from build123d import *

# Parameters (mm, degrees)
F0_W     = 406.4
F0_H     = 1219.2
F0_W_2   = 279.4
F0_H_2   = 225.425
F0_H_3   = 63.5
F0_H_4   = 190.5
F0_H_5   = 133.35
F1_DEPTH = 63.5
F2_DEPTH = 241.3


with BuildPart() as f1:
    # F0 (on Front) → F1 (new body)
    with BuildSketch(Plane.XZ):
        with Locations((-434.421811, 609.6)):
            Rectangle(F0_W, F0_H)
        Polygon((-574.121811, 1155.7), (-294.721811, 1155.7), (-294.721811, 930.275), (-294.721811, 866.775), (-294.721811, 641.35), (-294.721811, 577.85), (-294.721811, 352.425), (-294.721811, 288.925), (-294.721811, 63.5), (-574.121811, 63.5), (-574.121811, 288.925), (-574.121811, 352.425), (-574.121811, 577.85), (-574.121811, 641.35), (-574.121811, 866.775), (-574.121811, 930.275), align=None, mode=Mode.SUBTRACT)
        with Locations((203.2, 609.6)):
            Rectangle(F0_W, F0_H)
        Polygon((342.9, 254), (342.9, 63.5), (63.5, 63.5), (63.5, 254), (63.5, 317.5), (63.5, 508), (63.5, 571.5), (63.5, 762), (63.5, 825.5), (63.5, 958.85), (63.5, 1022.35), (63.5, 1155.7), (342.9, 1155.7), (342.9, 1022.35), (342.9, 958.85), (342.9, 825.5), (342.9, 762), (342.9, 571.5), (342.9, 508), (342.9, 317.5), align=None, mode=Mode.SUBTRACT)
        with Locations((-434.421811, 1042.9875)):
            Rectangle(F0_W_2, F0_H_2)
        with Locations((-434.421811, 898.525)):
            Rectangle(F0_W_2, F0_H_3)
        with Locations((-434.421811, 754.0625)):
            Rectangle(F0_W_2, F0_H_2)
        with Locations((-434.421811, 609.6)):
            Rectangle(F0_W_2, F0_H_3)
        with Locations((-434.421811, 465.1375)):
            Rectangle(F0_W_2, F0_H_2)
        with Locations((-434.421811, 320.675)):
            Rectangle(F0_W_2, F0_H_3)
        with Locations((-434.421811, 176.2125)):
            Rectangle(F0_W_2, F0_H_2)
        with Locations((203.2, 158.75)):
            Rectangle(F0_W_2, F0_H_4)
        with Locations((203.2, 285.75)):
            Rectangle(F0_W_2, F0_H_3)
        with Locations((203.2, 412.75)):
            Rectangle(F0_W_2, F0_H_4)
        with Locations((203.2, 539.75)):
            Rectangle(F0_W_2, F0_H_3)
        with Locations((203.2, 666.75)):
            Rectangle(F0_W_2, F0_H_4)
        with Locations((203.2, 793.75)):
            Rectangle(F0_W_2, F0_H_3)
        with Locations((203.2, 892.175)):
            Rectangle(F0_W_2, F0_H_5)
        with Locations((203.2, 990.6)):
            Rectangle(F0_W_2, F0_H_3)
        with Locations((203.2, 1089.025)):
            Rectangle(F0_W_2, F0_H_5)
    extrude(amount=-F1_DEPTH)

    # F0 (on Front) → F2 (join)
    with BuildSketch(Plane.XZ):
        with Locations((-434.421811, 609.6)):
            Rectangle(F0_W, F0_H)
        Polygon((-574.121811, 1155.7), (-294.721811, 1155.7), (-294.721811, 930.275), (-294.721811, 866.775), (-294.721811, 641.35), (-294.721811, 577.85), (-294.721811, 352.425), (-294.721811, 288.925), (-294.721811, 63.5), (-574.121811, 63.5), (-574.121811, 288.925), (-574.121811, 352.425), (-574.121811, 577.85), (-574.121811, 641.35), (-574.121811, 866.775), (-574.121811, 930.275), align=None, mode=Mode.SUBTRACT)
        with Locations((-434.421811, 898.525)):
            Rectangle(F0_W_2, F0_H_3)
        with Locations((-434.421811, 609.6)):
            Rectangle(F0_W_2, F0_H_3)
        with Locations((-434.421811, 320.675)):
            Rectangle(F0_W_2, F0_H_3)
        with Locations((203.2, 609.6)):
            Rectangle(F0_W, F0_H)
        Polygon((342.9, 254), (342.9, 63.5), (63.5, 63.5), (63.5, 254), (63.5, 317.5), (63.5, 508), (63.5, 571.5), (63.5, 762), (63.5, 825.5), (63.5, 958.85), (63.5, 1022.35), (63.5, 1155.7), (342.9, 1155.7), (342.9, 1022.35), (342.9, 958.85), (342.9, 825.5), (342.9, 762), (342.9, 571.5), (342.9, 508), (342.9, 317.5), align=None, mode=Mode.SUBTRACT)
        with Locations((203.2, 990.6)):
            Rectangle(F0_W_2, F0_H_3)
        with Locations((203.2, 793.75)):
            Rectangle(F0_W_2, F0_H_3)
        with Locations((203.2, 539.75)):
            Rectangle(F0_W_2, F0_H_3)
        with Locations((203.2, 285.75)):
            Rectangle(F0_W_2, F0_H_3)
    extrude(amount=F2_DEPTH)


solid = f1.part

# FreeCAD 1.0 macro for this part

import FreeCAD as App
import Part
import Sketcher
Q = App.Units.Quantity

doc = App.newDocument("Part")
body = doc.addObject("PartDesign::Body", "Body")
body.AllowCompound = True

sketch1 = body.newObject("Sketcher::SketchObject", "Sketch")
sketch1.AttachmentSupport = (doc.getObject("XZ_Plane"), [""])
sketch1.MapMode = "FlatFace"
sketch1.addGeometry(Part.LineSegment(App.Vector(-638, 1219, 0), App.Vector(-638, 0, 0)), False)
sketch1.addGeometry(Part.LineSegment(App.Vector(-638, 0, 0), App.Vector(-231, 0, 0)), False)
sketch1.addGeometry(Part.LineSegment(App.Vector(-231, 0, 0), App.Vector(-231, 1219, 0)), False)
sketch1.addGeometry(Part.LineSegment(App.Vector(-231, 1219, 0), App.Vector(-638, 1219, 0)), False)
sketch1.addGeometry(Part.LineSegment(App.Vector(0, 1219, 0), App.Vector(0, 0, 0)), False)
sketch1.addGeometry(Part.LineSegment(App.Vector(0, 0, 0), App.Vector(406, 0, 0)), False)
sketch1.addGeometry(Part.LineSegment(App.Vector(406, 0, 0), App.Vector(406, 1219, 0)), False)
sketch1.addGeometry(Part.LineSegment(App.Vector(406, 1219, 0), App.Vector(0, 1219, 0)), False)
sketch1.addConstraint(Sketcher.Constraint("Coincident", 0, 2, 1, 1))
sketch1.addConstraint(Sketcher.Constraint("Coincident", 1, 2, 2, 1))
sketch1.addConstraint(Sketcher.Constraint("Coincident", 2, 2, 3, 1))
sketch1.addConstraint(Sketcher.Constraint("Coincident", 3, 2, 0, 1))
sketch1.addConstraint(Sketcher.Constraint("Coincident", 4, 2, 5, 1))
sketch1.addConstraint(Sketcher.Constraint("Coincident", 5, 2, 6, 1))
sketch1.addConstraint(Sketcher.Constraint("Coincident", 6, 2, 7, 1))
sketch1.addConstraint(Sketcher.Constraint("Coincident", 7, 2, 4, 1))
sketch1.addConstraint(Sketcher.Constraint("Vertical", 0))
sketch1.addConstraint(Sketcher.Constraint("Horizontal", 1))
sketch1.addConstraint(Sketcher.Constraint("Vertical", 2))
sketch1.addConstraint(Sketcher.Constraint("Horizontal", 3))
sketch1.addConstraint(Sketcher.Constraint("Vertical", 4))
sketch1.addConstraint(Sketcher.Constraint("Horizontal", 5))
sketch1.addConstraint(Sketcher.Constraint("Vertical", 6))
sketch1.addConstraint(Sketcher.Constraint("Horizontal", 7))
sketch1.addConstraint(Sketcher.Constraint("Coincident", 4, 2, -1, 1))
sketch1.addConstraint(Sketcher.Constraint("PointOnObject", 0, 2, -1))
sketch1.addConstraint(Sketcher.Constraint("Horizontal", 3, 2, 6, 2))
sketch1.addConstraint(Sketcher.Constraint("Equal", 3, 5))
sketch1.addConstraint(Sketcher.Constraint("DistanceX", 1, 1, 1, 2, Q("16 in")))
sketch1.addConstraint(Sketcher.Constraint("DistanceY", 0, 2, 0, 1, Q("48 in")))
sketch1.addConstraint(Sketcher.Constraint("DistanceX", 0, 2, -1, 1, Q("637.621811 mm")))
pad1 = body.newObject("PartDesign::Pad", "Pad")
pad1.Profile = sketch1
pad1.Length = Q("2.5 in")
pad1.Reversed = True

sketch2 = body.newObject("Sketcher::SketchObject", "Sketch001")
sketch2.AttachmentSupport = (doc.getObject("XZ_Plane"), [""])
sketch2.MapMode = "FlatFace"
sketch2.addGeometry(Part.LineSegment(App.Vector(-638, 1219, 0), App.Vector(-638, 0, 0)), False)
sketch2.addGeometry(Part.LineSegment(App.Vector(-638, 0, 0), App.Vector(-231, 0, 0)), False)
sketch2.addGeometry(Part.LineSegment(App.Vector(-231, 0, 0), App.Vector(-231, 1219, 0)), False)
sketch2.addGeometry(Part.LineSegment(App.Vector(-231, 1219, 0), App.Vector(-638, 1219, 0)), False)
sketch2.addGeometry(Part.LineSegment(App.Vector(-574, 64, 0), App.Vector(-574, 289, 0)), False)
sketch2.addGeometry(Part.LineSegment(App.Vector(-574, 289, 0), App.Vector(-295, 289, 0)), False)
sketch2.addGeometry(Part.LineSegment(App.Vector(-295, 289, 0), App.Vector(-295, 64, 0)), False)
sketch2.addGeometry(Part.LineSegment(App.Vector(-295, 64, 0), App.Vector(-574, 64, 0)), False)
sketch2.addGeometry(Part.LineSegment(App.Vector(-574, 352, 0), App.Vector(-574, 578, 0)), False)
sketch2.addGeometry(Part.LineSegment(App.Vector(-574, 578, 0), App.Vector(-295, 578, 0)), False)
sketch2.addGeometry(Part.LineSegment(App.Vector(-295, 578, 0), App.Vector(-295, 352, 0)), False)
sketch2.addGeometry(Part.LineSegment(App.Vector(-295, 352, 0), App.Vector(-574, 352, 0)), False)
sketch2.addGeometry(Part.LineSegment(App.Vector(-574, 641, 0), App.Vector(-574, 867, 0)), False)
sketch2.addGeometry(Part.LineSegment(App.Vector(-574, 867, 0), App.Vector(-295, 867, 0)), False)
sketch2.addGeometry(Part.LineSegment(App.Vector(-295, 867, 0), App.Vector(-295, 641, 0)), False)
sketch2.addGeometry(Part.LineSegment(App.Vector(-295, 641, 0), App.Vector(-574, 641, 0)), False)
sketch2.addGeometry(Part.LineSegment(App.Vector(-574, 930, 0), App.Vector(-574, 1156, 0)), False)
sketch2.addGeometry(Part.LineSegment(App.Vector(-574, 1156, 0), App.Vector(-295, 1156, 0)), False)
sketch2.addGeometry(Part.LineSegment(App.Vector(-295, 1156, 0), App.Vector(-295, 930, 0)), False)
sketch2.addGeometry(Part.LineSegment(App.Vector(-295, 930, 0), App.Vector(-574, 930, 0)), False)
sketch2.addGeometry(Part.LineSegment(App.Vector(0, 1219, 0), App.Vector(0, 0, 0)), False)
sketch2.addGeometry(Part.LineSegment(App.Vector(0, 0, 0), App.Vector(406, 0, 0)), False)
sketch2.addGeometry(Part.LineSegment(App.Vector(406, 0, 0), App.Vector(406, 1219, 0)), False)
sketch2.addGeometry(Part.LineSegment(App.Vector(406, 1219, 0), App.Vector(0, 1219, 0)), False)
sketch2.addGeometry(Part.LineSegment(App.Vector(343, 1156, 0), App.Vector(343, 1022, 0)), False)
sketch2.addGeometry(Part.LineSegment(App.Vector(343, 1022, 0), App.Vector(64, 1022, 0)), False)
sketch2.addGeometry(Part.LineSegment(App.Vector(64, 1022, 0), App.Vector(64, 1156, 0)), False)
sketch2.addGeometry(Part.LineSegment(App.Vector(64, 1156, 0), App.Vector(343, 1156, 0)), False)
sketch2.addGeometry(Part.LineSegment(App.Vector(343, 959, 0), App.Vector(343, 826, 0)), False)
sketch2.addGeometry(Part.LineSegment(App.Vector(343, 826, 0), App.Vector(64, 826, 0)), False)
sketch2.addGeometry(Part.LineSegment(App.Vector(64, 826, 0), App.Vector(64, 959, 0)), False)
sketch2.addGeometry(Part.LineSegment(App.Vector(64, 959, 0), App.Vector(343, 959, 0)), False)
sketch2.addGeometry(Part.LineSegment(App.Vector(343, 762, 0), App.Vector(343, 572, 0)), False)
sketch2.addGeometry(Part.LineSegment(App.Vector(343, 572, 0), App.Vector(64, 572, 0)), False)
sketch2.addGeometry(Part.LineSegment(App.Vector(64, 572, 0), App.Vector(64, 762, 0)), False)
sketch2.addGeometry(Part.LineSegment(App.Vector(64, 762, 0), App.Vector(343, 762, 0)), False)
sketch2.addGeometry(Part.LineSegment(App.Vector(343, 508, 0), App.Vector(343, 318, 0)), False)
sketch2.addGeometry(Part.LineSegment(App.Vector(343, 318, 0), App.Vector(64, 318, 0)), False)
sketch2.addGeometry(Part.LineSegment(App.Vector(64, 318, 0), App.Vector(64, 508, 0)), False)
sketch2.addGeometry(Part.LineSegment(App.Vector(64, 508, 0), App.Vector(343, 508, 0)), False)
sketch2.addGeometry(Part.LineSegment(App.Vector(343, 254, 0), App.Vector(343, 64, 0)), False)
sketch2.addGeometry(Part.LineSegment(App.Vector(343, 64, 0), App.Vector(64, 64, 0)), False)
sketch2.addGeometry(Part.LineSegment(App.Vector(64, 64, 0), App.Vector(64, 254, 0)), False)
sketch2.addGeometry(Part.LineSegment(App.Vector(64, 254, 0), App.Vector(343, 254, 0)), False)
sketch2.addConstraint(Sketcher.Constraint("Coincident", 0, 2, 1, 1))
sketch2.addConstraint(Sketcher.Constraint("Coincident", 1, 2, 2, 1))
sketch2.addConstraint(Sketcher.Constraint("Coincident", 2, 2, 3, 1))
sketch2.addConstraint(Sketcher.Constraint("Coincident", 3, 2, 0, 1))
sketch2.addConstraint(Sketcher.Constraint("Coincident", 4, 2, 5, 1))
sketch2.addConstraint(Sketcher.Constraint("Coincident", 5, 2, 6, 1))
sketch2.addConstraint(Sketcher.Constraint("Coincident", 6, 2, 7, 1))
sketch2.addConstraint(Sketcher.Constraint("Coincident", 7, 2, 4, 1))
sketch2.addConstraint(Sketcher.Constraint("Coincident", 8, 2, 9, 1))
sketch2.addConstraint(Sketcher.Constraint("Coincident", 9, 2, 10, 1))
sketch2.addConstraint(Sketcher.Constraint("Coincident", 10, 2, 11, 1))
sketch2.addConstraint(Sketcher.Constraint("Coincident", 11, 2, 8, 1))
sketch2.addConstraint(Sketcher.Constraint("Coincident", 12, 2, 13, 1))
sketch2.addConstraint(Sketcher.Constraint("Coincident", 13, 2, 14, 1))
sketch2.addConstraint(Sketcher.Constraint("Coincident", 14, 2, 15, 1))
sketch2.addConstraint(Sketcher.Constraint("Coincident", 15, 2, 12, 1))
sketch2.addConstraint(Sketcher.Constraint("Coincident", 16, 2, 17, 1))
sketch2.addConstraint(Sketcher.Constraint("Coincident", 17, 2, 18, 1))
sketch2.addConstraint(Sketcher.Constraint("Coincident", 18, 2, 19, 1))
sketch2.addConstraint(Sketcher.Constraint("Coincident", 19, 2, 16, 1))
sketch2.addConstraint(Sketcher.Constraint("Coincident", 20, 2, 21, 1))
sketch2.addConstraint(Sketcher.Constraint("Coincident", 21, 2, 22, 1))
sketch2.addConstraint(Sketcher.Constraint("Coincident", 22, 2, 23, 1))
sketch2.addConstraint(Sketcher.Constraint("Coincident", 23, 2, 20, 1))
sketch2.addConstraint(Sketcher.Constraint("Coincident", 24, 2, 25, 1))
sketch2.addConstraint(Sketcher.Constraint("Coincident", 25, 2, 26, 1))
sketch2.addConstraint(Sketcher.Constraint("Coincident", 26, 2, 27, 1))
sketch2.addConstraint(Sketcher.Constraint("Coincident", 27, 2, 24, 1))
sketch2.addConstraint(Sketcher.Constraint("Coincident", 28, 2, 29, 1))
sketch2.addConstraint(Sketcher.Constraint("Coincident", 29, 2, 30, 1))
sketch2.addConstraint(Sketcher.Constraint("Coincident", 30, 2, 31, 1))
sketch2.addConstraint(Sketcher.Constraint("Coincident", 31, 2, 28, 1))
sketch2.addConstraint(Sketcher.Constraint("Coincident", 32, 2, 33, 1))
sketch2.addConstraint(Sketcher.Constraint("Coincident", 33, 2, 34, 1))
sketch2.addConstraint(Sketcher.Constraint("Coincident", 34, 2, 35, 1))
sketch2.addConstraint(Sketcher.Constraint("Coincident", 35, 2, 32, 1))
sketch2.addConstraint(Sketcher.Constraint("Coincident", 36, 2, 37, 1))
sketch2.addConstraint(Sketcher.Constraint("Coincident", 37, 2, 38, 1))
sketch2.addConstraint(Sketcher.Constraint("Coincident", 38, 2, 39, 1))
sketch2.addConstraint(Sketcher.Constraint("Coincident", 39, 2, 36, 1))
sketch2.addConstraint(Sketcher.Constraint("Coincident", 40, 2, 41, 1))
sketch2.addConstraint(Sketcher.Constraint("Coincident", 41, 2, 42, 1))
sketch2.addConstraint(Sketcher.Constraint("Coincident", 42, 2, 43, 1))
sketch2.addConstraint(Sketcher.Constraint("Coincident", 43, 2, 40, 1))
sketch2.addConstraint(Sketcher.Constraint("Vertical", 0))
sketch2.addConstraint(Sketcher.Constraint("Horizontal", 1))
sketch2.addConstraint(Sketcher.Constraint("Vertical", 2))
sketch2.addConstraint(Sketcher.Constraint("Horizontal", 3))
sketch2.addConstraint(Sketcher.Constraint("Vertical", 4))
sketch2.addConstraint(Sketcher.Constraint("Horizontal", 5))
sketch2.addConstraint(Sketcher.Constraint("Vertical", 6))
sketch2.addConstraint(Sketcher.Constraint("Horizontal", 7))
sketch2.addConstraint(Sketcher.Constraint("Vertical", 8))
sketch2.addConstraint(Sketcher.Constraint("Horizontal", 9))
sketch2.addConstraint(Sketcher.Constraint("Vertical", 10))
sketch2.addConstraint(Sketcher.Constraint("Horizontal", 11))
sketch2.addConstraint(Sketcher.Constraint("Vertical", 12))
sketch2.addConstraint(Sketcher.Constraint("Horizontal", 13))
sketch2.addConstraint(Sketcher.Constraint("Vertical", 14))
sketch2.addConstraint(Sketcher.Constraint("Horizontal", 15))
sketch2.addConstraint(Sketcher.Constraint("Vertical", 16))
sketch2.addConstraint(Sketcher.Constraint("Horizontal", 17))
sketch2.addConstraint(Sketcher.Constraint("Vertical", 18))
sketch2.addConstraint(Sketcher.Constraint("Horizontal", 19))
sketch2.addConstraint(Sketcher.Constraint("Vertical", 20))
sketch2.addConstraint(Sketcher.Constraint("Horizontal", 21))
sketch2.addConstraint(Sketcher.Constraint("Vertical", 22))
sketch2.addConstraint(Sketcher.Constraint("Horizontal", 23))
sketch2.addConstraint(Sketcher.Constraint("Vertical", 24))
sketch2.addConstraint(Sketcher.Constraint("Horizontal", 25))
sketch2.addConstraint(Sketcher.Constraint("Vertical", 26))
sketch2.addConstraint(Sketcher.Constraint("Horizontal", 27))
sketch2.addConstraint(Sketcher.Constraint("Vertical", 28))
sketch2.addConstraint(Sketcher.Constraint("Horizontal", 29))
sketch2.addConstraint(Sketcher.Constraint("Vertical", 30))
sketch2.addConstraint(Sketcher.Constraint("Horizontal", 31))
sketch2.addConstraint(Sketcher.Constraint("Vertical", 32))
sketch2.addConstraint(Sketcher.Constraint("Horizontal", 33))
sketch2.addConstraint(Sketcher.Constraint("Vertical", 34))
sketch2.addConstraint(Sketcher.Constraint("Horizontal", 35))
sketch2.addConstraint(Sketcher.Constraint("Vertical", 36))
sketch2.addConstraint(Sketcher.Constraint("Horizontal", 37))
sketch2.addConstraint(Sketcher.Constraint("Vertical", 38))
sketch2.addConstraint(Sketcher.Constraint("Horizontal", 39))
sketch2.addConstraint(Sketcher.Constraint("Vertical", 40))
sketch2.addConstraint(Sketcher.Constraint("Horizontal", 41))
sketch2.addConstraint(Sketcher.Constraint("Vertical", 42))
sketch2.addConstraint(Sketcher.Constraint("Horizontal", 43))
sketch2.addConstraint(Sketcher.Constraint("Coincident", 20, 2, -1, 1))
sketch2.addConstraint(Sketcher.Constraint("PointOnObject", 0, 2, -1))
sketch2.addConstraint(Sketcher.Constraint("Horizontal", 3, 2, 22, 2))
sketch2.addConstraint(Sketcher.Constraint("Horizontal", 17, 2, 26, 2))
sketch2.addConstraint(Sketcher.Constraint("Horizontal", 7, 2, 40, 2))
sketch2.addConstraint(Sketcher.Constraint("Vertical", 7, 2, 8, 2))
sketch2.addConstraint(Sketcher.Constraint("Vertical", 6, 2, 9, 2))
sketch2.addConstraint(Sketcher.Constraint("Vertical", 11, 2, 12, 2))
sketch2.addConstraint(Sketcher.Constraint("Vertical", 10, 2, 13, 2))
sketch2.addConstraint(Sketcher.Constraint("Vertical", 15, 2, 16, 2))
sketch2.addConstraint(Sketcher.Constraint("Vertical", 14, 2, 17, 2))
sketch2.addConstraint(Sketcher.Constraint("Vertical", 27, 2, 28, 2))
sketch2.addConstraint(Sketcher.Constraint("Vertical", 26, 2, 29, 2))
sketch2.addConstraint(Sketcher.Constraint("Vertical", 31, 2, 32, 2))
sketch2.addConstraint(Sketcher.Constraint("Vertical", 30, 2, 33, 2))
sketch2.addConstraint(Sketcher.Constraint("Vertical", 35, 2, 36, 2))
sketch2.addConstraint(Sketcher.Constraint("Vertical", 34, 2, 37, 2))
sketch2.addConstraint(Sketcher.Constraint("Vertical", 39, 2, 40, 2))
sketch2.addConstraint(Sketcher.Constraint("Vertical", 38, 2, 41, 2))
sketch2.addConstraint(Sketcher.Constraint("Equal", 3, 21))
sketch2.addConstraint(Sketcher.Constraint("Equal", 19, 25))
sketch2.addConstraint(Sketcher.Constraint("Equal", 6, 8))
sketch2.addConstraint(Sketcher.Constraint("Equal", 10, 12))
sketch2.addConstraint(Sketcher.Constraint("Equal", 14, 16))
sketch2.addConstraint(Sketcher.Constraint("Equal", 26, 28))
sketch2.addConstraint(Sketcher.Constraint("Equal", 34, 36))
sketch2.addConstraint(Sketcher.Constraint("Equal", 38, 40))
sketch2.addConstraint(Sketcher.Constraint("DistanceX", 1, 1, 1, 2, Q("16 in")))
sketch2.addConstraint(Sketcher.Constraint("DistanceX", 5, 1, 5, 2, Q("11 in")))
sketch2.addConstraint(Sketcher.Constraint("DistanceY", 0, 2, 0, 1, Q("48 in")))
sketch2.addConstraint(Sketcher.Constraint("DistanceY", 32, 2, 32, 1, Q("7.5 in")))
sketch2.addConstraint(Sketcher.Constraint("DistanceY", -1, 1, 34, 2, Q("30 in")))
sketch2.addConstraint(Sketcher.Constraint("DistanceY", -1, 1, 38, 2, Q("20 in")))
sketch2.addConstraint(Sketcher.Constraint("DistanceY", -1, 1, 42, 2, Q("10 in")))
sketch2.addConstraint(Sketcher.Constraint("DistanceY", 28, 2, 27, 2, Q("13 in")))
sketch2.addConstraint(Sketcher.Constraint("DistanceY", 32, 2, 28, 2, Q("10 in")))
sketch2.addConstraint(Sketcher.Constraint("DistanceY", 24, 2, 24, 1, Q("5.25 in")))
sketch2.addConstraint(Sketcher.Constraint("DistanceX", -1, 1, 24, 2, Q("13.5 in")))
sketch2.addConstraint(Sketcher.Constraint("DistanceX", 0, 2, 4, 2, Q("2.5 in")))
sketch2.addConstraint(Sketcher.Constraint("DistanceY", 5, 2, 10, 2, Q("2.5 in")))
sketch2.addConstraint(Sketcher.Constraint("DistanceY", 9, 2, 14, 2, Q("2.5 in")))
sketch2.addConstraint(Sketcher.Constraint("DistanceY", 13, 2, 18, 2, Q("2.5 in")))
sketch2.addConstraint(Sketcher.Constraint("DistanceX", 0, 2, -1, 1, Q("637.621811 mm")))
pad2 = body.newObject("PartDesign::Pad", "Pad001")
pad2.Profile = sketch2
pad2.Length = Q("9.5 in")

doc.recompute()
